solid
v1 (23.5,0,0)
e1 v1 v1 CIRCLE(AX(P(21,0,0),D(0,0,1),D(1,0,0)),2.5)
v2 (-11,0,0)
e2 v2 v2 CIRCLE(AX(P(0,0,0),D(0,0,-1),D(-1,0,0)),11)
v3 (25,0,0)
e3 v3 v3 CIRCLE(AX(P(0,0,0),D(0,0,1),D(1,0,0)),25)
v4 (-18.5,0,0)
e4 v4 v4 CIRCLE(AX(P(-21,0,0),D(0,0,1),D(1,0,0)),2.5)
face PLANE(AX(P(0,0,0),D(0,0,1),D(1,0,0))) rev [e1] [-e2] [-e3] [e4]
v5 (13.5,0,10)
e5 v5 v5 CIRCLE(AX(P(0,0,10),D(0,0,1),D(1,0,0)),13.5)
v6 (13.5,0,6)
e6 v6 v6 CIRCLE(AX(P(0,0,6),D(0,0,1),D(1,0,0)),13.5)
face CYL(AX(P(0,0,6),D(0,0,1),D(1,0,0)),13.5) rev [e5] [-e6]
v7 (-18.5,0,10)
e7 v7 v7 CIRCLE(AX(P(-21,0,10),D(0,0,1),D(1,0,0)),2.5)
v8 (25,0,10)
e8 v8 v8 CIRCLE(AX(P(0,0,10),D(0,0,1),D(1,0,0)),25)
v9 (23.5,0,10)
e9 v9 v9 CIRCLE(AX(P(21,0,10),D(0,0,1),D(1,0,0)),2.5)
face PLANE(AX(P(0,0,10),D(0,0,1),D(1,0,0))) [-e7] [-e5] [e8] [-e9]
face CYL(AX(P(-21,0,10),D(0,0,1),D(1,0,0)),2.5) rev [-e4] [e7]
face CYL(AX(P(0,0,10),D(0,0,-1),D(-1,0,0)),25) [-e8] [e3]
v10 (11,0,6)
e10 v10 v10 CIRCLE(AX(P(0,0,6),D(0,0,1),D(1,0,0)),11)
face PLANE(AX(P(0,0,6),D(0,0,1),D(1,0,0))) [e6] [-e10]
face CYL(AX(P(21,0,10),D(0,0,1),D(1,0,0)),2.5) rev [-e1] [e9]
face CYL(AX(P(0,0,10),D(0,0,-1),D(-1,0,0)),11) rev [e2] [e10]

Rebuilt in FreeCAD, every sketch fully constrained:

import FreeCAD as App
import Part
import Sketcher
from FreeCAD import Vector

doc = App.newDocument("Part")
params = doc.addObject("Spreadsheet::Sheet", "Params")
for row, (alias, value) in enumerate([
    ("sketch1_diameter", "50 mm"),
    ("pad1_length", "10 mm"),
    ("sketch2_diameter", "27 mm"),
    ("pocket1_length", "4 mm"),
    ("sketch3_diameter", "22 mm"),
    ("sketch4_diameter", "5 mm"),
    ("hole_diameter", "5 mm"),
], start=1):
    params.set(f"A{row}", alias)
    params.set(f"B{row}", "=" + value)
    params.setAlias(f"B{row}", alias)

body = doc.addObject("PartDesign::Body", "Body")

# Sketch on XY plane
sketch1 = body.newObject("Sketcher::SketchObject", "Sketch")
sketch1.AttachmentSupport = (doc.getObject("XY_Plane"), [""])
sketch1.MapMode = "FlatFace"
sketch1.addGeometry(Part.Circle(Vector(0, 0, 0), Vector(0, 0, 1), 25), False)
sketch1.addConstraint([
    Sketcher.Constraint("Coincident", 0, 3, -1, 1),
    Sketcher.Constraint("Diameter", 0, 50.0),
])
sketch1.setExpression("Constraints[1]", "Params.sketch1_diameter")
pad1 = body.newObject("PartDesign::Pad", "Pad")
pad1.Profile = sketch1
pad1.setExpression("Length", "Params.pad1_length")

# Sketch on XY plane
sketch2 = body.newObject("Sketcher::SketchObject", "Sketch001")
sketch2.AttachmentSupport = (doc.getObject("XY_Plane"), [""])
sketch2.MapMode = "FlatFace"
sketch2.AttachmentOffset = App.Placement(Vector(0, 0, 10), App.Rotation())
sketch2.addGeometry(Part.Circle(Vector(0, 0, 0), Vector(0, 0, 1), 14), False)
sketch2.addConstraint([
    Sketcher.Constraint("Coincident", 0, 3, -1, 1),
    Sketcher.Constraint("Diameter", 0, 27.0),
])
sketch2.setExpression("Constraints[1]", "Params.sketch2_diameter")
pocket1 = body.newObject("PartDesign::Pocket", "Pocket")
pocket1.Profile = sketch2
pocket1.setExpression("Length", "Params.pocket1_length")

# Sketch on XY plane
sketch3 = body.newObject("Sketcher::SketchObject", "Sketch002")
sketch3.AttachmentSupport = (doc.getObject("XY_Plane"), [""])
sketch3.MapMode = "FlatFace"
sketch3.addGeometry(Part.Circle(Vector(0, 0, 0), Vector(0, 0, 1), 11), False)
sketch3.addConstraint([
    Sketcher.Constraint("Coincident", 0, 3, -1, 1),
    Sketcher.Constraint("Diameter", 0, 22.0),
])
sketch3.setExpression("Constraints[1]", "Params.sketch3_diameter")
pocket2 = body.newObject("PartDesign::Pocket", "Pocket001")
pocket2.Profile = sketch3
pocket2.Type = "ThroughAll"
pocket2.Reversed = True

# Sketch on XY plane
sketch4 = body.newObject("Sketcher::SketchObject", "Sketch003")
sketch4.AttachmentSupport = (doc.getObject("XY_Plane"), [""])
sketch4.MapMode = "FlatFace"
sketch4.AttachmentOffset = App.Placement(Vector(0, 0, 10), App.Rotation())
sketch4.addGeometry([
    Part.Circle(Vector(-21, 0, 0), Vector(0, 0, 1), 2.5),
    Part.Circle(Vector(21, 0, 0), Vector(0, 0, 1), 2.5),
], False)
sketch4.addConstraint([
    Sketcher.Constraint("Equal", 0, 1),
    Sketcher.Constraint("Symmetric", 0, 3, 1, 3, -1, 1),
    Sketcher.Constraint("PointOnObject", 0, 3, -1),
    Sketcher.Constraint("Diameter", 0, 5.0),
    Sketcher.Constraint("DistanceX", 0, 3, -1, 1, 21.0),
])
sketch4.setExpression("Constraints[3]", "Params.sketch4_diameter")
doc.recompute()
hole = body.newObject("PartDesign::Hole", "Hole")
hole.Profile = sketch4
hole.ThreadType = "None"
hole.setExpression("Diameter", "Params.hole_diameter")
hole.DepthType = "ThroughAll"

doc.recompute()
